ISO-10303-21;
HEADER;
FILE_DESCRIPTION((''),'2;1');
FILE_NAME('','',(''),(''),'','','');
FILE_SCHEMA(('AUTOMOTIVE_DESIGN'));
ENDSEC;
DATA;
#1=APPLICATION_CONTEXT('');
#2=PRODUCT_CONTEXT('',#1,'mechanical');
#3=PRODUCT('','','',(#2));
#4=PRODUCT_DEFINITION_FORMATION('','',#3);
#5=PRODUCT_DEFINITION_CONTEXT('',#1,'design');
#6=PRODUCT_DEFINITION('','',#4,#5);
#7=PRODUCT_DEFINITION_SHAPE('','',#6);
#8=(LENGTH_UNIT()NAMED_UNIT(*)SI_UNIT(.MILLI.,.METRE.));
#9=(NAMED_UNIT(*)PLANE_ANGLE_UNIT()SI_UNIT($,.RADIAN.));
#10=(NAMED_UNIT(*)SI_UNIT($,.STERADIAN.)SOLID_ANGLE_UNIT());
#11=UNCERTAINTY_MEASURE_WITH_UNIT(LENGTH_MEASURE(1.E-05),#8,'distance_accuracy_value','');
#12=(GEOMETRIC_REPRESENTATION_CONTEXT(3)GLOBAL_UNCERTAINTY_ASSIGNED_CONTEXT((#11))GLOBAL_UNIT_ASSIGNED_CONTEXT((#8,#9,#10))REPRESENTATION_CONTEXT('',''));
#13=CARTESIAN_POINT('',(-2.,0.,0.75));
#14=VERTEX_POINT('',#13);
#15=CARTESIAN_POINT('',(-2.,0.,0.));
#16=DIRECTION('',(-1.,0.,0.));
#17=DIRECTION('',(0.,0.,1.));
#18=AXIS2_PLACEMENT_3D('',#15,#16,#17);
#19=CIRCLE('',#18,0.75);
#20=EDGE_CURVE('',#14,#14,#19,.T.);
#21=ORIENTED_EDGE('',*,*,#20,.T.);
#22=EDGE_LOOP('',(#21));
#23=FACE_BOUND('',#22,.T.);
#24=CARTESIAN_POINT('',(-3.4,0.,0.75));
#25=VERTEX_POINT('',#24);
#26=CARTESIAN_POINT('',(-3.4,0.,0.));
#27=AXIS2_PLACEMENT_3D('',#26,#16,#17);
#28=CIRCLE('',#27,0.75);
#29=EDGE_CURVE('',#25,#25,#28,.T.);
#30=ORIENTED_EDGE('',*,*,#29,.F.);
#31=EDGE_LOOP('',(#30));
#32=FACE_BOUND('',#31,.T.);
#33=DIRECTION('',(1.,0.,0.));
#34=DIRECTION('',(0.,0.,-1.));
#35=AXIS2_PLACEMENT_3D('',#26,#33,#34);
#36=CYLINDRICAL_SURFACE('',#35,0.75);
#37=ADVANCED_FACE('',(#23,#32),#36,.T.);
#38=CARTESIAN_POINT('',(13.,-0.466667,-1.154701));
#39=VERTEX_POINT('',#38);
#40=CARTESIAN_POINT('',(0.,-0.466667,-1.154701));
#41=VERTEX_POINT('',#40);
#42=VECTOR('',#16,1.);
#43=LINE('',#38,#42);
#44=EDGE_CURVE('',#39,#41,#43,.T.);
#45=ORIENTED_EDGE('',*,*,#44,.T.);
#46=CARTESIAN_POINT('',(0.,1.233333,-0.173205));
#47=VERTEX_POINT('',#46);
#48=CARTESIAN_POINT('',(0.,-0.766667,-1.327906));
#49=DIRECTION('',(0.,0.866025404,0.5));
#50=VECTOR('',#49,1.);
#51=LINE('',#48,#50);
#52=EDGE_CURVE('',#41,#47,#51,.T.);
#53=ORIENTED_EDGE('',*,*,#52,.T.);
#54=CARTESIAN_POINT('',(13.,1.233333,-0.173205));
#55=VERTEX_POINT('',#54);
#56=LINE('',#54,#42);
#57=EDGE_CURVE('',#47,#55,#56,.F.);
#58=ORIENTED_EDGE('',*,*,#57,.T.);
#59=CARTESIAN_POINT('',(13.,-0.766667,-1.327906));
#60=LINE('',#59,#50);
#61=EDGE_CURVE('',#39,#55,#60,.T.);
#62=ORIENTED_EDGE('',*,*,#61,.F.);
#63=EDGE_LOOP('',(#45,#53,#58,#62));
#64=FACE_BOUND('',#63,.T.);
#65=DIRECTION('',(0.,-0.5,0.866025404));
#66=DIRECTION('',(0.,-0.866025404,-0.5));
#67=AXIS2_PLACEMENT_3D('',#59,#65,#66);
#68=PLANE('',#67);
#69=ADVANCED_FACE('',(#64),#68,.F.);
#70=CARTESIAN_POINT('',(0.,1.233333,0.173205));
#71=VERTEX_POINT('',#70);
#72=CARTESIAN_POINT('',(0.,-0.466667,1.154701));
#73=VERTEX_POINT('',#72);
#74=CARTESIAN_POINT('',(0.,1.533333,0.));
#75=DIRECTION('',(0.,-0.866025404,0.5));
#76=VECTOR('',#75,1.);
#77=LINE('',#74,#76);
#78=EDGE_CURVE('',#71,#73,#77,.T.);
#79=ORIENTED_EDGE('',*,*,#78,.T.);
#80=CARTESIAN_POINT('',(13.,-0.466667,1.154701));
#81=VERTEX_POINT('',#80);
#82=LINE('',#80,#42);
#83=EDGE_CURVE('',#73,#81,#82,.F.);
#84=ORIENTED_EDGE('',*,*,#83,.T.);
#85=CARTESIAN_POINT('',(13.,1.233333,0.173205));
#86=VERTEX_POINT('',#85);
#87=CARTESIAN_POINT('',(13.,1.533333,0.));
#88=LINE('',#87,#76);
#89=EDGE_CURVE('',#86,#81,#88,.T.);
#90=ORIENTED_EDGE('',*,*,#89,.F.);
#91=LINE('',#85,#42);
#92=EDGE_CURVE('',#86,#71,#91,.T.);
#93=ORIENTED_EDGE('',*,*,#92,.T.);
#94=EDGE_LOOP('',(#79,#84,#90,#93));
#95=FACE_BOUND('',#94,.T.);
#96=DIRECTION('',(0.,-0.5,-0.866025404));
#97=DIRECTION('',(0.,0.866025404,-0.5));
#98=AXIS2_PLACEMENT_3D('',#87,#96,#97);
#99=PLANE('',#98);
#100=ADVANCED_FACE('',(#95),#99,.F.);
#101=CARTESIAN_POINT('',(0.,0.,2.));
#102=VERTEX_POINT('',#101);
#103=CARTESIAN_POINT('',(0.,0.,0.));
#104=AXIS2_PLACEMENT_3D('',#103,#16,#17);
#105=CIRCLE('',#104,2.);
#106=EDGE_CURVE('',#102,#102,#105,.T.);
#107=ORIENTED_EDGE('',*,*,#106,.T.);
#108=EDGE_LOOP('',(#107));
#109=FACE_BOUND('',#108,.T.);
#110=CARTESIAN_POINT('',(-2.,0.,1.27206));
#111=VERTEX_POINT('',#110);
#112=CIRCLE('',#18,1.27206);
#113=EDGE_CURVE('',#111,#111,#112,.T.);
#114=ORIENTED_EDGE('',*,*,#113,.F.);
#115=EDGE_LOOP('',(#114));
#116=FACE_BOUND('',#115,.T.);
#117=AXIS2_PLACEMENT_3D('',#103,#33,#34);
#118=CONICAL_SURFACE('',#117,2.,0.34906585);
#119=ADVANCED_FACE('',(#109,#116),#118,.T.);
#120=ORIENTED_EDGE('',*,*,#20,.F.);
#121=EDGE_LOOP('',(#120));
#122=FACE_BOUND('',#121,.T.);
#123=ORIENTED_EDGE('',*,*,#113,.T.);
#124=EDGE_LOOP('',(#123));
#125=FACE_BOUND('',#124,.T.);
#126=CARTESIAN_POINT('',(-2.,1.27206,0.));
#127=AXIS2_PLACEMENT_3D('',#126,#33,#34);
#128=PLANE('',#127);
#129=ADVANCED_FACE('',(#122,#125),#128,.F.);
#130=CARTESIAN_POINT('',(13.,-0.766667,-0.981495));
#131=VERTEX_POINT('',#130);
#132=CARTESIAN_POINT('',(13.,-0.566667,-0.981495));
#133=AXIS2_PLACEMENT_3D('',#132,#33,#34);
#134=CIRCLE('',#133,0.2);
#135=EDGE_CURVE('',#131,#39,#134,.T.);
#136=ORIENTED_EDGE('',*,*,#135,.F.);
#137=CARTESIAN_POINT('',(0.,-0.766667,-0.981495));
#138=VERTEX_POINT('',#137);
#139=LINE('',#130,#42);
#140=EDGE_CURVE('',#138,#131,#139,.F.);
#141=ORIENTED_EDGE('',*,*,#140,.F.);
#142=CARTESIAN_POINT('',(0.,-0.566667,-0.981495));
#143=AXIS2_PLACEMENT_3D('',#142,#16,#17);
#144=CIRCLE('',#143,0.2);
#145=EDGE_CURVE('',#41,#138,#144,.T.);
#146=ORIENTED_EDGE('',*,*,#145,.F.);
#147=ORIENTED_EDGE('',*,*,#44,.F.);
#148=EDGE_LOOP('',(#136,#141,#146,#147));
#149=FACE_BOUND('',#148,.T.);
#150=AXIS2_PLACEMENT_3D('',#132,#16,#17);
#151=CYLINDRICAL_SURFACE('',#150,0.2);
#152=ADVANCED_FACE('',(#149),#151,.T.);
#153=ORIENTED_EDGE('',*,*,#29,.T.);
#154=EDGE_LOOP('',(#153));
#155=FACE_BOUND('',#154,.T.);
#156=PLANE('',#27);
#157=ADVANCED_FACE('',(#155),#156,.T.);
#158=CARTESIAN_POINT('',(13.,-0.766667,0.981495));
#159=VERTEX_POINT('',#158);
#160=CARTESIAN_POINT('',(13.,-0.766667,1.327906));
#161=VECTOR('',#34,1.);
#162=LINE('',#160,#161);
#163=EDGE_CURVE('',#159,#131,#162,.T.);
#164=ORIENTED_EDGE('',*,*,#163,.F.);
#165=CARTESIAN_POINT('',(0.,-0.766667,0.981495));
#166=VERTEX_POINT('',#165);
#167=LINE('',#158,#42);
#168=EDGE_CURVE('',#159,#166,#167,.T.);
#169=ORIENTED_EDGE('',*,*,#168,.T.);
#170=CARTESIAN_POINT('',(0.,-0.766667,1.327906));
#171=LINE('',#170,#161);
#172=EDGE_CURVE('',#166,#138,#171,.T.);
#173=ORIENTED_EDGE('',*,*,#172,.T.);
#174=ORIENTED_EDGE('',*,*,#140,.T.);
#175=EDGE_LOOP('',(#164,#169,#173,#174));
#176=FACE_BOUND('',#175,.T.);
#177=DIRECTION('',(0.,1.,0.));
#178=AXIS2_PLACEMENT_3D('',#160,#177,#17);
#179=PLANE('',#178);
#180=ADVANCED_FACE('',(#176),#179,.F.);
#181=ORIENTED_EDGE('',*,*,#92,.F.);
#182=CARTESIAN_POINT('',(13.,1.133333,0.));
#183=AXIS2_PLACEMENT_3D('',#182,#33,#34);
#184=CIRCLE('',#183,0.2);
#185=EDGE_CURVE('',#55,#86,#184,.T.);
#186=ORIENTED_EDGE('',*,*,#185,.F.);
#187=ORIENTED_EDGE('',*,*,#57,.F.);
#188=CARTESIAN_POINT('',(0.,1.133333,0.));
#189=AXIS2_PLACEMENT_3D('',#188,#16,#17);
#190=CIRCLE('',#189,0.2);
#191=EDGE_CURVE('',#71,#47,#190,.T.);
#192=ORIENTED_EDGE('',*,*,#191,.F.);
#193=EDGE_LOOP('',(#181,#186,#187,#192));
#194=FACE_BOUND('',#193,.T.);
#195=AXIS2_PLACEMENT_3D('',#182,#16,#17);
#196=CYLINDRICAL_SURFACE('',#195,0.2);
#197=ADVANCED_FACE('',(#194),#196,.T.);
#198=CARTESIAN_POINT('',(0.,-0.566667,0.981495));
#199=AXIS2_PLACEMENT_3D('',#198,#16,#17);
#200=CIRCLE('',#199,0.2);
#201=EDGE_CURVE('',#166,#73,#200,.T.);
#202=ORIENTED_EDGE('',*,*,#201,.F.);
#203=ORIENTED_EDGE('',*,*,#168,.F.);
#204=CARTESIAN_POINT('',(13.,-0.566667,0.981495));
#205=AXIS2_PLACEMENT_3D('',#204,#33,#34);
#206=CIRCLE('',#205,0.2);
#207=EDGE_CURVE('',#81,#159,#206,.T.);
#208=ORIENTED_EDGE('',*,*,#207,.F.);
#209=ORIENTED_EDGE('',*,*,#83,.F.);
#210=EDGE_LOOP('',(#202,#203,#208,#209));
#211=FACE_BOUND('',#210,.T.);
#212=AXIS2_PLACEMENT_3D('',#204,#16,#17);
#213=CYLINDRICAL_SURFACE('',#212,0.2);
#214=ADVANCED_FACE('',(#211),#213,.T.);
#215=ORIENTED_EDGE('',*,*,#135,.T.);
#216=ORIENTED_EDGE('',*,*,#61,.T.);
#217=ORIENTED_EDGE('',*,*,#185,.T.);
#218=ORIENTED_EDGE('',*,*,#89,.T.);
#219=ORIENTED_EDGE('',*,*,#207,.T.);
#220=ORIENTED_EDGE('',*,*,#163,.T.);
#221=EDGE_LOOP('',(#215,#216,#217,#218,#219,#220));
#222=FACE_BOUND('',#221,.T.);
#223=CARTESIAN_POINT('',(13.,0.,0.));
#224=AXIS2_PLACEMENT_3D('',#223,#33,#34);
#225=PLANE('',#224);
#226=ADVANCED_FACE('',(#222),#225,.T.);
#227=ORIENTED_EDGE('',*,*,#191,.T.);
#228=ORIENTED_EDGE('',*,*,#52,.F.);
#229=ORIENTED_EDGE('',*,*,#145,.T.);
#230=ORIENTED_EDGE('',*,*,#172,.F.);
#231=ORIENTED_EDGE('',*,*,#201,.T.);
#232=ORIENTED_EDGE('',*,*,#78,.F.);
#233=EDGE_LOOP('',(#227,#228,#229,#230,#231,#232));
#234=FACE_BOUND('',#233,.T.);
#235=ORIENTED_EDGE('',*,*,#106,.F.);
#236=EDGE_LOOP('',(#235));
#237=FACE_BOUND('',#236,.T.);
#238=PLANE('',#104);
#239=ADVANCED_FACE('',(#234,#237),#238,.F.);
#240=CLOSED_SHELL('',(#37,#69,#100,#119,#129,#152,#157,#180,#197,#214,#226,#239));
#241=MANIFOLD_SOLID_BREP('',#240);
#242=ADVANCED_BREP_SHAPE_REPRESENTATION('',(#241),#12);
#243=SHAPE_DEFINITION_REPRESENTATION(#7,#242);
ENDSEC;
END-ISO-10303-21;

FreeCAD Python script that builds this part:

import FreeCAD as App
import Part
import Sketcher

V = App.Vector
Q = App.Units.Quantity


def edges_at(feature, points):
    """Names of the edges that pass closest to the given points."""
    edges = feature.Shape.Edges
    near = lambda p: min(range(len(edges)), key=lambda i: edges[i].distToShape(Part.Vertex(*p))[0])
    return sorted({f"Edge{near(p) + 1}" for p in points})


def add_polygon(sketch, points):
    """Adds a closed chain of lines whose ends are joined by coincident constraints."""
    first, n = sketch.GeometryCount, len(points)
    for a, b in zip(points, points[1:] + points[:1]):
        sketch.addGeometry(Part.LineSegment(App.Vector(*a, 0), App.Vector(*b, 0)), False)
    for i in range(n):
        sketch.addConstraint(Sketcher.Constraint("Coincident", first + i, 2, first + (i + 1) % n, 1))

doc = App.newDocument("Part")
body = doc.addObject("PartDesign::Body", "Body")

# Sketch on XY plane
sketch1 = body.newObject("Sketcher::SketchObject", "Sketch")
sketch1.AttachmentSupport = (doc.getObject("XY_Plane"), [""])
sketch1.MapMode = "FlatFace"
add_polygon(sketch1, [(0, 0), (0, 2), (-2, 1.27206), (-2, 0)])  # lines 0-3
sketch1.addConstraint(Sketcher.Constraint("Vertical", 0))
sketch1.addConstraint(Sketcher.Constraint("Vertical", 2))
sketch1.addConstraint(Sketcher.Constraint("Horizontal", 3))
sketch1.addConstraint(Sketcher.Constraint("Coincident", 3, 2, -1, 1))
sketch1.addConstraint(Sketcher.Constraint("Equal", 3, 0))
sketch1.addConstraint(Sketcher.Constraint("DistanceX", 3, 1, 3, 2, 2.0))
sketch1.addConstraint(Sketcher.Constraint("Angle", 1, Q("-160 deg")))
revolution = body.newObject("PartDesign::Revolution", "Revolution")
revolution.Profile = sketch1
revolution.ReferenceAxis = (sketch1, ["H_Axis"])
revolution.Angle = 360

# Sketch on YZ plane
sketch2 = body.newObject("Sketcher::SketchObject", "Sketch001")
sketch2.AttachmentSupport = (doc.getObject("YZ_Plane"), [""])
sketch2.MapMode = "FlatFace"
add_polygon(sketch2, [(1.533333, 0), (-0.766667, 1.327906), (-0.766667, -1.327906)])  # lines 0-2
sketch2.addConstraint(Sketcher.Constraint("Vertical", 1))
sketch2.addConstraint(Sketcher.Constraint("PointOnObject", 2, 2, -1))
sketch2.addConstraint(Sketcher.Constraint("Equal", 0, 2))
sketch2.addConstraint(Sketcher.Constraint("Angle", 0, Q("150 deg")))
sketch2.addConstraint(Sketcher.Constraint("DistanceX", 0, 2, 2, 2, 2.3))
sketch2.addConstraint(Sketcher.Constraint("DistanceX", 0, 2, -1, 1, 0.766667))
pad1 = body.newObject("PartDesign::Pad", "Pad")
pad1.Profile = sketch2
pad1.Length = 13

# Sketch on YZ plane
sketch3 = body.newObject("Sketcher::SketchObject", "Sketch002")
sketch3.AttachmentSupport = (doc.getObject("YZ_Plane"), [""])
sketch3.MapMode = "FlatFace"
sketch3.AttachmentOffset = App.Placement(V(0, 0, -2), App.Rotation())
sketch3.addGeometry(Part.Circle(V(0, 0, 0), V(0, 0, 1), 0.75), False)
sketch3.addConstraint(Sketcher.Constraint("Coincident", 0, 3, -1, 1))
sketch3.addConstraint(Sketcher.Constraint("Diameter", 0, 1.5))
pad2 = body.newObject("PartDesign::Pad", "Pad001")
pad2.Profile = sketch3
pad2.Length = 1.4
pad2.Reversed = True
doc.recompute()

fillet = body.newObject("PartDesign::Fillet", "Fillet")
fillet.Base = (pad2, edges_at(pad2, [(6.5, -0.767, -1.328), (6.5, 1.533, 0), (6.5, -0.767, 1.328)]))
fillet.Radius = 0.2

doc.recompute()
